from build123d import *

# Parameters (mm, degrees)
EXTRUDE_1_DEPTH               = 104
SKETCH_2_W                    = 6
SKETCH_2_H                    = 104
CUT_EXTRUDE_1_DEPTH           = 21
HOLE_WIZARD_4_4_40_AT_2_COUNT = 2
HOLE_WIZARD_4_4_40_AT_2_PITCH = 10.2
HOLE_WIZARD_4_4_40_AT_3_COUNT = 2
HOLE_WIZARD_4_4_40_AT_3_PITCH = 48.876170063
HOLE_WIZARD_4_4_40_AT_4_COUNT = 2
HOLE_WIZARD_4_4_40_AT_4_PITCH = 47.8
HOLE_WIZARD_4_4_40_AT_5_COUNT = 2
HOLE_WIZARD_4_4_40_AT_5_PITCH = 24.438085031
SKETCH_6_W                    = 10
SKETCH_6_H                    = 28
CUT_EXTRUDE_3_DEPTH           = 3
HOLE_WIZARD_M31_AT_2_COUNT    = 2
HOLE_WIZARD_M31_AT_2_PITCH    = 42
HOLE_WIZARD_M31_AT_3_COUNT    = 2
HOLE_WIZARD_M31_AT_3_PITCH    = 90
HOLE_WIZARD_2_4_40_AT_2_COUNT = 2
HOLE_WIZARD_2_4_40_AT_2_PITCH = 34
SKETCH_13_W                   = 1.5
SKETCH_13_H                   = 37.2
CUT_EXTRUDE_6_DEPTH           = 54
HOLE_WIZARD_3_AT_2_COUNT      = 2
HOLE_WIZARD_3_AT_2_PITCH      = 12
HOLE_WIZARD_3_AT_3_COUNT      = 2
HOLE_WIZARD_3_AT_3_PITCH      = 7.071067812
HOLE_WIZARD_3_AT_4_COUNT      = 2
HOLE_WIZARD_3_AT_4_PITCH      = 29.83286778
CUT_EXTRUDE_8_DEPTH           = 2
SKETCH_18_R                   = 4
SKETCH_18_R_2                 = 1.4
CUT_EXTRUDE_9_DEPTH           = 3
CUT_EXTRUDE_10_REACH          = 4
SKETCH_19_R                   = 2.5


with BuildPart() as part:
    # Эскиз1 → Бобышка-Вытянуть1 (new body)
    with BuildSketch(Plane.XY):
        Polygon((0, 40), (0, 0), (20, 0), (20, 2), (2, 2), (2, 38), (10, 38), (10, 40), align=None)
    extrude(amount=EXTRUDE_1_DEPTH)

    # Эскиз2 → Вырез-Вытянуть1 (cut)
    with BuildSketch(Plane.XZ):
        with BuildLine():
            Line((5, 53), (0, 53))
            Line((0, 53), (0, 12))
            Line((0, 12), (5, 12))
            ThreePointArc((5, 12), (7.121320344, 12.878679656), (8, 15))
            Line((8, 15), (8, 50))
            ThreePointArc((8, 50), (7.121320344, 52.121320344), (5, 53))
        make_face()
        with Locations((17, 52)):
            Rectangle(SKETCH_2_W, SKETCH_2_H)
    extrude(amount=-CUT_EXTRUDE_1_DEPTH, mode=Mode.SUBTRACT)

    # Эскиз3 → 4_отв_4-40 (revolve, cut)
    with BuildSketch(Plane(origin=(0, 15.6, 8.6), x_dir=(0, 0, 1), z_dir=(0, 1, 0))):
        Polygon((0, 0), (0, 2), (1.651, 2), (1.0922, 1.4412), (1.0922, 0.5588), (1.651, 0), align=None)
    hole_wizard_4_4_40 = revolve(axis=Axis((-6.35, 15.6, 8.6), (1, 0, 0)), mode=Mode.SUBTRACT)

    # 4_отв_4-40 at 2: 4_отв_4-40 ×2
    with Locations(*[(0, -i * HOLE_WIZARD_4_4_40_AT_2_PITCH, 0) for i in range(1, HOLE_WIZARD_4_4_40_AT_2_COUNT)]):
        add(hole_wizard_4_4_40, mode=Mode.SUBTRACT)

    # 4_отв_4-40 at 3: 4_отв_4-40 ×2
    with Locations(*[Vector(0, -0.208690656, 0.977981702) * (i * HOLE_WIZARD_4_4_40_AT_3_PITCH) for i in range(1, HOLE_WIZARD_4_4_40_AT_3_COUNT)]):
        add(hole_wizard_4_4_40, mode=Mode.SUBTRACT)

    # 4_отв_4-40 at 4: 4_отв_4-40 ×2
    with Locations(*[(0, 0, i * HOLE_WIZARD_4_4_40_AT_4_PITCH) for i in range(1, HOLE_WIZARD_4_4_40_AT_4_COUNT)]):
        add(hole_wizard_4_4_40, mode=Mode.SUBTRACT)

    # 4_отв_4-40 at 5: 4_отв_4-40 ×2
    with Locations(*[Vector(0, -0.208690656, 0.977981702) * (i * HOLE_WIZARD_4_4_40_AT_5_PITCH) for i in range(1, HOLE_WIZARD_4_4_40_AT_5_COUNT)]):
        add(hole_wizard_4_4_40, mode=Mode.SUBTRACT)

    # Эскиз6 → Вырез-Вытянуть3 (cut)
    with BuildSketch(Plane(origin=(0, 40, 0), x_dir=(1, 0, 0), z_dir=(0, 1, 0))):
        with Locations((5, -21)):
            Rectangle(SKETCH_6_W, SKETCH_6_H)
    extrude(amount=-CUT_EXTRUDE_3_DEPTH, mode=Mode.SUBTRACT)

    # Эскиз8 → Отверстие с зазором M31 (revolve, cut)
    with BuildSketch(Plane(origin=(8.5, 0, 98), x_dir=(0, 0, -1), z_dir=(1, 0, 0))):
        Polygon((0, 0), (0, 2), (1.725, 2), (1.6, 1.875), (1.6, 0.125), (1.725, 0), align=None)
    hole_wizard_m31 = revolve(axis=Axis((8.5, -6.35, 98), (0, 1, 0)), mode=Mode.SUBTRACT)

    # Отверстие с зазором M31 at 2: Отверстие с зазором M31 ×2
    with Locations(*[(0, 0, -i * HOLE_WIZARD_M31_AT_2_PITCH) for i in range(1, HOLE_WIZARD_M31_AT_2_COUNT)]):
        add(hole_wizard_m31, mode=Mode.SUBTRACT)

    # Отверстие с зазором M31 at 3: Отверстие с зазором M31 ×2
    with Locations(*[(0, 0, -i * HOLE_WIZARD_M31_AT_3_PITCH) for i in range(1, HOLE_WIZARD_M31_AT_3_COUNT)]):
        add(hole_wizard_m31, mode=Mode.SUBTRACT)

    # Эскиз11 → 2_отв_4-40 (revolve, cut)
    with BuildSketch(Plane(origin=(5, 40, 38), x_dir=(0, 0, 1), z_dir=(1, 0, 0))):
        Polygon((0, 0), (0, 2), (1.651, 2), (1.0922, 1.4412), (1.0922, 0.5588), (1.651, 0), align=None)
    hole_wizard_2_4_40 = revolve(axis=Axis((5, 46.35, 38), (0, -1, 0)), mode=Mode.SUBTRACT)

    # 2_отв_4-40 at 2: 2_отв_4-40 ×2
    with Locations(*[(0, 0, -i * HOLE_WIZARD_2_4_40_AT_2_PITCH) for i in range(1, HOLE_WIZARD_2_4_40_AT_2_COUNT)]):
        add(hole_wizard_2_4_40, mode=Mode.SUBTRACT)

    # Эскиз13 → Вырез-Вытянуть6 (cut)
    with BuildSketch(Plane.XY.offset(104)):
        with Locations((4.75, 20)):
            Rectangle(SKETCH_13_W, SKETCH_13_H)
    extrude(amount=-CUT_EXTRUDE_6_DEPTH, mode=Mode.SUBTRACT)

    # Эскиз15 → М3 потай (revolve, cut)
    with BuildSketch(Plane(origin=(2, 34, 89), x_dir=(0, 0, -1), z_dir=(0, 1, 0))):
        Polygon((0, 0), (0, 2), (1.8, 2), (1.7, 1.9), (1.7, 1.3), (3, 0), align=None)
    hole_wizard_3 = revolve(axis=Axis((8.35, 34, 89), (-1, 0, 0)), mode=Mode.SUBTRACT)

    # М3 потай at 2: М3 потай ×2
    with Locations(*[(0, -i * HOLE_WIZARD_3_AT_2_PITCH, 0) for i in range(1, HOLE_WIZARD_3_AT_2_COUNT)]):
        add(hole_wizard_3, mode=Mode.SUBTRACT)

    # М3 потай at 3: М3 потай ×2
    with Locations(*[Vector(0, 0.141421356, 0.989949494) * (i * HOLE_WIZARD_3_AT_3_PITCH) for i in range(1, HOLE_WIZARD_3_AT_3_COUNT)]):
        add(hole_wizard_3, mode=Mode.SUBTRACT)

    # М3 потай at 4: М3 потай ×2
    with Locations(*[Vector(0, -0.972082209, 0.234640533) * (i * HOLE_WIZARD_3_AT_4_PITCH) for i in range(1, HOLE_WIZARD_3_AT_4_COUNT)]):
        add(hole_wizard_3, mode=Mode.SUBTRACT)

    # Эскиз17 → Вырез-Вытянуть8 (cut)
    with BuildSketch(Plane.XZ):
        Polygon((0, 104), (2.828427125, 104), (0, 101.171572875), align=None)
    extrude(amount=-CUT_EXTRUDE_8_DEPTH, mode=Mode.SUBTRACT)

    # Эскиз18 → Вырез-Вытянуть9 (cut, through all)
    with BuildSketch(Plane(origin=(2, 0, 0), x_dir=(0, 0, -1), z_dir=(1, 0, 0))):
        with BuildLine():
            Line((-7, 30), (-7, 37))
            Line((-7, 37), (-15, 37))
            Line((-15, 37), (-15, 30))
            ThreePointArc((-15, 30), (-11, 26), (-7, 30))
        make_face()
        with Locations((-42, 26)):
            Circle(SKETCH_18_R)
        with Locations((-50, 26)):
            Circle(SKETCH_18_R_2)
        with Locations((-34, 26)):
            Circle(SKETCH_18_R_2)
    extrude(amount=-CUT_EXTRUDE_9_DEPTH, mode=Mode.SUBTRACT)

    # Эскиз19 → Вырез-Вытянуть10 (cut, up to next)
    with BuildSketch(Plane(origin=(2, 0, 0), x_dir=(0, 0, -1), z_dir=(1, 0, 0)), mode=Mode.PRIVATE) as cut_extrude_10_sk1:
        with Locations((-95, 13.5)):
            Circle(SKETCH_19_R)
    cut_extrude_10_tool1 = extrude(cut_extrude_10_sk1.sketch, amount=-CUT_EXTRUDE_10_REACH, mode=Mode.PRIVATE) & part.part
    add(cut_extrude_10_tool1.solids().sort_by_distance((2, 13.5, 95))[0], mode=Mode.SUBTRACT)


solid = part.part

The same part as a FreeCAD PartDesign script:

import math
import FreeCAD as App
import Part
import Sketcher
Q = App.Units.Quantity


def add_polygon(sketch, points):
    """Adds a closed chain of lines whose ends are joined by coincident constraints."""
    first, n = sketch.GeometryCount, len(points)
    for a, b in zip(points, points[1:] + points[:1]):
        sketch.addGeometry(Part.LineSegment(App.Vector(*a, 0), App.Vector(*b, 0)), False)
    for i in range(n):
        sketch.addConstraint(Sketcher.Constraint("Coincident", first + i, 2, first + (i + 1) % n, 1))

doc = App.newDocument("Part")
body = doc.addObject("PartDesign::Body", "Body")

sketch1 = doc.addObject("Sketcher::SketchObject", "Sketch")
body.addObject(sketch1)
sketch1.AttachmentSupport = (doc.XY_Plane, [""])
sketch1.MapMode = "FlatFace"
add_polygon(sketch1, [(0, 40), (0, 0), (20, 0), (20, 2), (2, 2), (2, 38), (10, 38), (10, 40)])
sketch1.addConstraint(Sketcher.Constraint("Vertical", 0))
sketch1.addConstraint(Sketcher.Constraint("Horizontal", 1))
sketch1.addConstraint(Sketcher.Constraint("Vertical", 2))
sketch1.addConstraint(Sketcher.Constraint("Horizontal", 3))
sketch1.addConstraint(Sketcher.Constraint("Vertical", 4))
sketch1.addConstraint(Sketcher.Constraint("Horizontal", 5))
sketch1.addConstraint(Sketcher.Constraint("Vertical", 6))
sketch1.addConstraint(Sketcher.Constraint("Horizontal", 7))
sketch1.addConstraint(Sketcher.Constraint("Coincident", 0, 2, -1, 1))
sketch1.addConstraint(Sketcher.Constraint("Equal", 2, 6))
sketch1.addConstraint(Sketcher.Constraint("DistanceX", 1, 1, 1, 2, Q("20 mm")))
sketch1.addConstraint(Sketcher.Constraint("DistanceX", 3, 2, 3, 1, Q("18 mm")))
sketch1.addConstraint(Sketcher.Constraint("DistanceX", 5, 1, 5, 2, Q("8 mm")))
sketch1.addConstraint(Sketcher.Constraint("DistanceY", 0, 2, 0, 1, Q("40 mm")))
sketch1.addConstraint(Sketcher.Constraint("DistanceY", 2, 1, 2, 2, Q("2 mm")))
pad1 = doc.addObject("PartDesign::Pad", "Pad")
body.addObject(pad1)
pad1.Profile = sketch1
pad1.Length = 104

sketch2 = doc.addObject("Sketcher::SketchObject", "Sketch001")
body.addObject(sketch2)
sketch2.AttachmentSupport = (doc.XZ_Plane, [""])
sketch2.MapMode = "FlatFace"
sketch2.addGeometry(Part.LineSegment(App.Vector(5, 53, 0), App.Vector(0, 53, 0)), False)
sketch2.addGeometry(Part.LineSegment(App.Vector(0, 53, 0), App.Vector(0, 12, 0)), False)
sketch2.addGeometry(Part.LineSegment(App.Vector(0, 12, 0), App.Vector(5, 12, 0)), False)
sketch2.addGeometry(Part.ArcOfCircle(Part.Circle(App.Vector(5, 15, 0), App.Vector(0, 0, 1), 3), math.radians(-90), math.radians(0)), False)
sketch2.addGeometry(Part.LineSegment(App.Vector(8, 15, 0), App.Vector(8, 50, 0)), False)
sketch2.addGeometry(Part.ArcOfCircle(Part.Circle(App.Vector(5, 50, 0), App.Vector(0, 0, 1), 3), math.radians(0), math.radians(90)), False)
add_polygon(sketch2, [(14, 104), (14, 0), (20, 0), (20, 104)])
sketch2.addConstraint(Sketcher.Constraint("Coincident", 0, 2, 1, 1))
sketch2.addConstraint(Sketcher.Constraint("Coincident", 1, 2, 2, 1))
sketch2.addConstraint(Sketcher.Constraint("Tangent", 2, 2, 3, 1))
sketch2.addConstraint(Sketcher.Constraint("Tangent", 3, 2, 4, 1))
sketch2.addConstraint(Sketcher.Constraint("Tangent", 4, 2, 5, 1))
sketch2.addConstraint(Sketcher.Constraint("Tangent", 5, 2, 0, 1))
sketch2.addConstraint(Sketcher.Constraint("Horizontal", 0))
sketch2.addConstraint(Sketcher.Constraint("Vertical", 1))
sketch2.addConstraint(Sketcher.Constraint("Horizontal", 2))
sketch2.addConstraint(Sketcher.Constraint("Vertical", 4))
sketch2.addConstraint(Sketcher.Constraint("Vertical", 6))
sketch2.addConstraint(Sketcher.Constraint("Horizontal", 7))
sketch2.addConstraint(Sketcher.Constraint("Vertical", 8))
sketch2.addConstraint(Sketcher.Constraint("Horizontal", 9))
sketch2.addConstraint(Sketcher.Constraint("Equal", 3, 5))
sketch2.addConstraint(Sketcher.Constraint("PointOnObject", 0, 2, -2))
sketch2.addConstraint(Sketcher.Constraint("PointOnObject", 6, 2, -1))
sketch2.addConstraint(Sketcher.Constraint("Radius", 3, Q("3 mm")))
sketch2.addConstraint(Sketcher.Constraint("DistanceX", 0, 2, 0, 1, Q("5 mm")))
sketch2.addConstraint(Sketcher.Constraint("DistanceX", 7, 1, 7, 2, Q("6 mm")))
sketch2.addConstraint(Sketcher.Constraint("DistanceY", 1, 2, 1, 1, Q("41 mm")))
sketch2.addConstraint(Sketcher.Constraint("DistanceY", 6, 2, 6, 1, Q("104 mm")))
sketch2.addConstraint(Sketcher.Constraint("DistanceY", -1, 1, 3, 3, Q("15 mm")))
sketch2.addConstraint(Sketcher.Constraint("DistanceX", -1, 1, 6, 2, Q("14 mm")))
pocket1 = doc.addObject("PartDesign::Pocket", "Pocket")
body.addObject(pocket1)
pocket1.Profile = sketch2
pocket1.Length = 21

sketch3 = doc.addObject("Sketcher::SketchObject", "Sketch002")
body.addObject(sketch3)
sketch3.AttachmentSupport = (doc.XZ_Plane, [""])
sketch3.MapMode = "FlatFace"
sketch3.AttachmentOffset = App.Placement(App.Vector(0, 0, -15.6), App.Rotation())
add_polygon(sketch3, [(2, 8.6), (0, 8.6), (0, 10.251), (0.5588, 9.6922), (1.4412, 9.6922), (2, 10.251)])
sketch3.addGeometry(Part.LineSegment(App.Vector(0, 8.6, 0), App.Vector(2, 8.6, 0)), True)
sketch3.addConstraint(Sketcher.Constraint("Horizontal", 0))
sketch3.addConstraint(Sketcher.Constraint("Vertical", 1))
sketch3.addConstraint(Sketcher.Constraint("Horizontal", 3))
sketch3.addConstraint(Sketcher.Constraint("Vertical", 5))
sketch3.addConstraint(Sketcher.Constraint("Horizontal", 6))
sketch3.addConstraint(Sketcher.Constraint("Coincident", 6, 1, 0, 2))
sketch3.addConstraint(Sketcher.Constraint("PointOnObject", 0, 2, -2))
sketch3.addConstraint(Sketcher.Constraint("Perpendicular", 2, 4))
sketch3.addConstraint(Sketcher.Constraint("Horizontal", 1, 2, 4, 2))
sketch3.addConstraint(Sketcher.Constraint("Vertical", 4, 2, 6, 2))
sketch3.addConstraint(Sketcher.Constraint("Equal", 2, 4))
sketch3.addConstraint(Sketcher.Constraint("DistanceX", 0, 2, 0, 1, Q("2 mm")))
sketch3.addConstraint(Sketcher.Constraint("DistanceY", -1, 1, 0, 2, Q("8.6 mm")))
sketch3.addConstraint(Sketcher.Constraint("DistanceY", 1, 1, 1, 2, Q("1.651 mm")))
sketch3.addConstraint(Sketcher.Constraint("DistanceX", 3, 1, 3, 2, Q("0.8824 mm")))
groove = doc.addObject("PartDesign::Groove", "Groove")
body.addObject(groove)
groove.Profile = sketch3
groove.ReferenceAxis = (sketch3, ["Axis0"])
groove.Angle = 360
doc.recompute()

linearpattern = doc.addObject("PartDesign::LinearPattern", "LinearPattern")
body.addObject(linearpattern)
linearpattern.Originals = [groove]
linearpattern.Direction = (doc.Y_Axis, [""])
linearpattern.Mode = "offset"
linearpattern.Offset = 10.2
linearpattern.Occurrences = 2
linearpattern.Reversed = True
body.Tip = linearpattern
doc.recompute()

datumline = doc.addObject("PartDesign::Line", "DatumLine")
body.addObject(datumline)
datumline.Placement = App.Placement(App.Vector(0, 0, 0), App.Rotation(App.Vector(0, 0, 1), App.Vector(0, -0.208690656, 0.977981702)))
linearpattern2 = doc.addObject("PartDesign::LinearPattern", "LinearPattern001")
body.addObject(linearpattern2)
linearpattern2.Originals = [groove]
linearpattern2.Direction = (datumline, [""])
linearpattern2.Mode = "offset"
linearpattern2.Offset = 48.87617
linearpattern2.Occurrences = 2
body.Tip = linearpattern2
doc.recompute()

linearpattern3 = doc.addObject("PartDesign::LinearPattern", "LinearPattern002")
body.addObject(linearpattern3)
linearpattern3.Originals = [groove]
linearpattern3.Direction = (doc.Z_Axis, [""])
linearpattern3.Mode = "offset"
linearpattern3.Offset = 47.8
linearpattern3.Occurrences = 2
body.Tip = linearpattern3
doc.recompute()

datumline2 = doc.addObject("PartDesign::Line", "DatumLine001")
body.addObject(datumline2)
datumline2.Placement = App.Placement(App.Vector(0, 0, 0), App.Rotation(App.Vector(0, 0, 1), App.Vector(0, -0.208690656, 0.977981702)))
linearpattern4 = doc.addObject("PartDesign::LinearPattern", "LinearPattern003")
body.addObject(linearpattern4)
linearpattern4.Originals = [groove]
linearpattern4.Direction = (datumline2, [""])
linearpattern4.Mode = "offset"
linearpattern4.Offset = 24.438085
linearpattern4.Occurrences = 2
body.Tip = linearpattern4

sketch4 = doc.addObject("Sketcher::SketchObject", "Sketch003")
body.addObject(sketch4)
sketch4.AttachmentSupport = (doc.XZ_Plane, [""])
sketch4.MapMode = "FlatFace"
sketch4.AttachmentOffset = App.Placement(App.Vector(0, 0, -40), App.Rotation())
add_polygon(sketch4, [(0, 7), (0, 35), (10, 35), (10, 7)])
sketch4.addConstraint(Sketcher.Constraint("Vertical", 0))
sketch4.addConstraint(Sketcher.Constraint("Horizontal", 1))
sketch4.addConstraint(Sketcher.Constraint("Vertical", 2))
sketch4.addConstraint(Sketcher.Constraint("Horizontal", 3))
sketch4.addConstraint(Sketcher.Constraint("PointOnObject", 0, 2, -2))
sketch4.addConstraint(Sketcher.Constraint("DistanceX", 1, 1, 1, 2, Q("10 mm")))
sketch4.addConstraint(Sketcher.Constraint("DistanceY", 0, 1, 0, 2, Q("28 mm")))
sketch4.addConstraint(Sketcher.Constraint("DistanceY", -1, 1, 0, 2, Q("35 mm")))
pocket2 = doc.addObject("PartDesign::Pocket", "Pocket001")
body.addObject(pocket2)
pocket2.Profile = sketch4
pocket2.Length = 3
pocket2.Reversed = True

sketch5 = doc.addObject("Sketcher::SketchObject", "Sketch004")
body.addObject(sketch5)
sketch5.AttachmentSupport = (doc.YZ_Plane, [""])
sketch5.MapMode = "FlatFace"
sketch5.AttachmentOffset = App.Placement(App.Vector(0, 0, 8.5), App.Rotation())
add_polygon(sketch5, [(2, 98), (0, 98), (0, 96.275), (0.125, 96.4), (1.875, 96.4), (2, 96.275)])
sketch5.addGeometry(Part.LineSegment(App.Vector(0, 98, 0), App.Vector(2, 98, 0)), True)
sketch5.addConstraint(Sketcher.Constraint("Horizontal", 0))
sketch5.addConstraint(Sketcher.Constraint("Vertical", 1))
sketch5.addConstraint(Sketcher.Constraint("Horizontal", 3))
sketch5.addConstraint(Sketcher.Constraint("Vertical", 5))
sketch5.addConstraint(Sketcher.Constraint("Horizontal", 6))
sketch5.addConstraint(Sketcher.Constraint("Coincident", 6, 1, 0, 2))
sketch5.addConstraint(Sketcher.Constraint("PointOnObject", 0, 2, -2))
sketch5.addConstraint(Sketcher.Constraint("Perpendicular", 2, 4))
sketch5.addConstraint(Sketcher.Constraint("Horizontal", 1, 2, 4, 2))
sketch5.addConstraint(Sketcher.Constraint("Vertical", 4, 2, 6, 2))
sketch5.addConstraint(Sketcher.Constraint("Equal", 2, 4))
sketch5.addConstraint(Sketcher.Constraint("DistanceX", 0, 2, 0, 1, Q("2 mm")))
sketch5.addConstraint(Sketcher.Constraint("DistanceY", -1, 1, 0, 2, Q("98 mm")))
sketch5.addConstraint(Sketcher.Constraint("DistanceX", 3, 1, 3, 2, Q("1.75 mm")))
sketch5.addConstraint(Sketcher.Constraint("DistanceY", -1, 1, 2, 2, Q("96.4 mm")))
groove2 = doc.addObject("PartDesign::Groove", "Groove001")
body.addObject(groove2)
groove2.Profile = sketch5
groove2.ReferenceAxis = (sketch5, ["Axis0"])
groove2.Angle = 360
doc.recompute()

linearpattern5 = doc.addObject("PartDesign::LinearPattern", "LinearPattern004")
body.addObject(linearpattern5)
linearpattern5.Originals = [groove2]
linearpattern5.Direction = (doc.Z_Axis, [""])
linearpattern5.Mode = "offset"
linearpattern5.Offset = 42
linearpattern5.Occurrences = 2
linearpattern5.Reversed = True
body.Tip = linearpattern5
doc.recompute()

linearpattern6 = doc.addObject("PartDesign::LinearPattern", "LinearPattern005")
body.addObject(linearpattern6)
linearpattern6.Originals = [groove2]
linearpattern6.Direction = (doc.Z_Axis, [""])
linearpattern6.Mode = "offset"
linearpattern6.Offset = 90
linearpattern6.Occurrences = 2
linearpattern6.Reversed = True
body.Tip = linearpattern6

sketch6 = doc.addObject("Sketcher::SketchObject", "Sketch005")
body.addObject(sketch6)
sketch6.AttachmentSupport = (doc.YZ_Plane, [""])
sketch6.MapMode = "FlatFace"
sketch6.AttachmentOffset = App.Placement(App.Vector(0, 0, 5), App.Rotation())
add_polygon(sketch6, [(38, 38), (40, 38), (40, 39.651), (39.4412, 39.0922), (38.5588, 39.0922), (38, 39.651)])
sketch6.addGeometry(Part.LineSegment(App.Vector(40, 38, 0), App.Vector(38, 38, 0)), True)
sketch6.addConstraint(Sketcher.Constraint("Horizontal", 0))
sketch6.addConstraint(Sketcher.Constraint("Vertical", 1))
sketch6.addConstraint(Sketcher.Constraint("Horizontal", 3))
sketch6.addConstraint(Sketcher.Constraint("Vertical", 5))
sketch6.addConstraint(Sketcher.Constraint("Horizontal", 6))
sketch6.addConstraint(Sketcher.Constraint("Coincident", 6, 1, 0, 2))
sketch6.addConstraint(Sketcher.Constraint("Perpendicular", 2, 4))
sketch6.addConstraint(Sketcher.Constraint("Horizontal", 1, 2, 4, 2))
sketch6.addConstraint(Sketcher.Constraint("Vertical", 4, 2, 6, 2))
sketch6.addConstraint(Sketcher.Constraint("Equal", 2, 4))
sketch6.addConstraint(Sketcher.Constraint("DistanceX", 0, 1, 0, 2, Q("2 mm")))
sketch6.addConstraint(Sketcher.Constraint("DistanceX", -1, 1, 0, 2, Q("40 mm")))
sketch6.addConstraint(Sketcher.Constraint("DistanceY", -1, 1, 0, 2, Q("38 mm")))
sketch6.addConstraint(Sketcher.Constraint("DistanceY", 1, 1, 1, 2, Q("1.651 mm")))
sketch6.addConstraint(Sketcher.Constraint("DistanceX", 3, 2, 3, 1, Q("0.8824 mm")))
groove3 = doc.addObject("PartDesign::Groove", "Groove002")
body.addObject(groove3)
groove3.Profile = sketch6
groove3.ReferenceAxis = (sketch6, ["Axis0"])
groove3.Angle = 360
doc.recompute()

linearpattern7 = doc.addObject("PartDesign::LinearPattern", "LinearPattern006")
body.addObject(linearpattern7)
linearpattern7.Originals = [groove3]
linearpattern7.Direction = (doc.Z_Axis, [""])
linearpattern7.Mode = "offset"
linearpattern7.Offset = 34
linearpattern7.Occurrences = 2
linearpattern7.Reversed = True
body.Tip = linearpattern7

sketch7 = doc.addObject("Sketcher::SketchObject", "Sketch006")
body.addObject(sketch7)
sketch7.AttachmentSupport = (doc.XY_Plane, [""])
sketch7.MapMode = "FlatFace"
sketch7.AttachmentOffset = App.Placement(App.Vector(0, 0, 104), App.Rotation())
add_polygon(sketch7, [(4, 38.6), (4, 1.4), (5.5, 1.4), (5.5, 38.6)])
sketch7.addConstraint(Sketcher.Constraint("Vertical", 0))
sketch7.addConstraint(Sketcher.Constraint("Horizontal", 1))
sketch7.addConstraint(Sketcher.Constraint("Vertical", 2))
sketch7.addConstraint(Sketcher.Constraint("Horizontal", 3))
sketch7.addConstraint(Sketcher.Constraint("DistanceX", 1, 1, 1, 2, Q("1.5 mm")))
sketch7.addConstraint(Sketcher.Constraint("DistanceY", 0, 2, 0, 1, Q("37.2 mm")))
sketch7.addConstraint(Sketcher.Constraint("DistanceX", -1, 1, 0, 2, Q("4 mm")))
sketch7.addConstraint(Sketcher.Constraint("DistanceY", -1, 1, 0, 2, Q("1.4 mm")))
pocket3 = doc.addObject("PartDesign::Pocket", "Pocket002")
body.addObject(pocket3)
pocket3.Profile = sketch7
pocket3.Length = 54

sketch8 = doc.addObject("Sketcher::SketchObject", "Sketch007")
body.addObject(sketch8)
sketch8.AttachmentSupport = (doc.XZ_Plane, [""])
sketch8.MapMode = "FlatFace"
sketch8.AttachmentOffset = App.Placement(App.Vector(0, 0, -34), App.Rotation())
add_polygon(sketch8, [(0, 89), (2, 89), (2, 86), (0.7, 87.3), (0.1, 87.3), (0, 87.2)])
sketch8.addGeometry(Part.LineSegment(App.Vector(2, 89, 0), App.Vector(0, 89, 0)), True)
sketch8.addConstraint(Sketcher.Constraint("Horizontal", 0))
sketch8.addConstraint(Sketcher.Constraint("Vertical", 1))
sketch8.addConstraint(Sketcher.Constraint("Horizontal", 3))
sketch8.addConstraint(Sketcher.Constraint("Vertical", 5))
sketch8.addConstraint(Sketcher.Constraint("Horizontal", 6))
sketch8.addConstraint(Sketcher.Constraint("Coincident", 6, 1, 0, 2))
sketch8.addConstraint(Sketcher.Constraint("PointOnObject", 4, 2, -2))
sketch8.addConstraint(Sketcher.Constraint("PointOnObject", 6, 2, -2))
sketch8.addConstraint(Sketcher.Constraint("Perpendicular", 2, 4))
sketch8.addConstraint(Sketcher.Constraint("DistanceX", 0, 1, 0, 2, Q("2 mm")))
sketch8.addConstraint(Sketcher.Constraint("DistanceY", 1, 2, 1, 1, Q("3 mm")))
sketch8.addConstraint(Sketcher.Constraint("Angle", 2, Q("135 deg")))
sketch8.addConstraint(Sketcher.Constraint("DistanceX", 3, 2, 3, 1, Q("0.6 mm")))
sketch8.addConstraint(Sketcher.Constraint("DistanceY", 5, 1, 5, 2, Q("1.8 mm")))
sketch8.addConstraint(Sketcher.Constraint("DistanceY", -1, 1, 0, 2, Q("89 mm")))
groove4 = doc.addObject("PartDesign::Groove", "Groove003")
body.addObject(groove4)
groove4.Profile = sketch8
groove4.ReferenceAxis = (sketch8, ["Axis0"])
groove4.Angle = 360
doc.recompute()

linearpattern8 = doc.addObject("PartDesign::LinearPattern", "LinearPattern007")
body.addObject(linearpattern8)
linearpattern8.Originals = [groove4]
linearpattern8.Direction = (doc.Y_Axis, [""])
linearpattern8.Mode = "offset"
linearpattern8.Offset = 12
linearpattern8.Occurrences = 2
linearpattern8.Reversed = True
body.Tip = linearpattern8
doc.recompute()

datumline3 = doc.addObject("PartDesign::Line", "DatumLine002")
body.addObject(datumline3)
datumline3.Placement = App.Placement(App.Vector(0, 0, 0), App.Rotation(App.Vector(0, 0, 1), App.Vector(0, 0.141421356, 0.989949494)))
linearpattern9 = doc.addObject("PartDesign::LinearPattern", "LinearPattern008")
body.addObject(linearpattern9)
linearpattern9.Originals = [groove4]
linearpattern9.Direction = (datumline3, [""])
linearpattern9.Mode = "offset"
linearpattern9.Offset = 7.071068
linearpattern9.Occurrences = 2
body.Tip = linearpattern9
doc.recompute()

datumline4 = doc.addObject("PartDesign::Line", "DatumLine003")
body.addObject(datumline4)
datumline4.Placement = App.Placement(App.Vector(0, 0, 0), App.Rotation(App.Vector(0, 0, 1), App.Vector(0, -0.972082209, 0.234640533)))
linearpattern10 = doc.addObject("PartDesign::LinearPattern", "LinearPattern009")
body.addObject(linearpattern10)
linearpattern10.Originals = [groove4]
linearpattern10.Direction = (datumline4, [""])
linearpattern10.Mode = "offset"
linearpattern10.Offset = 29.832868
linearpattern10.Occurrences = 2
body.Tip = linearpattern10

sketch9 = doc.addObject("Sketcher::SketchObject", "Sketch008")
body.addObject(sketch9)
sketch9.AttachmentSupport = (doc.XZ_Plane, [""])
sketch9.MapMode = "FlatFace"
add_polygon(sketch9, [(2.828427, 104), (0, 104), (0, 101.171573)])
sketch9.addConstraint(Sketcher.Constraint("Horizontal", 0))
sketch9.addConstraint(Sketcher.Constraint("Vertical", 1))
sketch9.addConstraint(Sketcher.Constraint("PointOnObject", 0, 2, -2))
sketch9.addConstraint(Sketcher.Constraint("Equal", 0, 1))
sketch9.addConstraint(Sketcher.Constraint("Distance", 2, Q("4 mm")))
sketch9.addConstraint(Sketcher.Constraint("DistanceY", -1, 1, 0, 2, Q("104 mm")))
pocket4 = doc.addObject("PartDesign::Pocket", "Pocket003")
body.addObject(pocket4)
pocket4.Profile = sketch9
pocket4.Length = 2

sketch10 = doc.addObject("Sketcher::SketchObject", "Sketch009")
body.addObject(sketch10)
sketch10.AttachmentSupport = (doc.YZ_Plane, [""])
sketch10.MapMode = "FlatFace"
sketch10.AttachmentOffset = App.Placement(App.Vector(0, 0, 2), App.Rotation())
sketch10.addGeometry(Part.LineSegment(App.Vector(30, 7, 0), App.Vector(37, 7, 0)), False)
sketch10.addGeometry(Part.LineSegment(App.Vector(37, 7, 0), App.Vector(37, 15, 0)), False)
sketch10.addGeometry(Part.LineSegment(App.Vector(37, 15, 0), App.Vector(30, 15, 0)), False)
sketch10.addGeometry(Part.ArcOfCircle(Part.Circle(App.Vector(30, 11, 0), App.Vector(0, 0, 1), 4), math.radians(90), math.radians(270)), False)
sketch10.addGeometry(Part.Circle(App.Vector(26, 42, 0), App.Vector(0, 0, 1), 4), False)
sketch10.addGeometry(Part.Circle(App.Vector(26, 50, 0), App.Vector(0, 0, 1), 1.4), False)
sketch10.addGeometry(Part.Circle(App.Vector(26, 34, 0), App.Vector(0, 0, 1), 1.4), False)
sketch10.addConstraint(Sketcher.Constraint("Coincident", 0, 2, 1, 1))
sketch10.addConstraint(Sketcher.Constraint("Coincident", 1, 2, 2, 1))
sketch10.addConstraint(Sketcher.Constraint("Tangent", 2, 2, 3, 1))
sketch10.addConstraint(Sketcher.Constraint("Tangent", 3, 2, 0, 1))
sketch10.addConstraint(Sketcher.Constraint("Horizontal", 0))
sketch10.addConstraint(Sketcher.Constraint("Vertical", 1))
sketch10.addConstraint(Sketcher.Constraint("Horizontal", 2))
sketch10.addConstraint(Sketcher.Constraint("Equal", 3, 4))
sketch10.addConstraint(Sketcher.Constraint("Equal", 5, 6))
sketch10.addConstraint(Sketcher.Constraint("Vertical", 4, 3, 5, 3))
sketch10.addConstraint(Sketcher.Constraint("Vertical", 5, 3, 6, 3))
sketch10.addConstraint(Sketcher.Constraint("Diameter", 4, Q("8 mm")))
sketch10.addConstraint(Sketcher.Constraint("Diameter", 5, Q("2.8 mm")))
sketch10.addConstraint(Sketcher.Constraint("DistanceX", 0, 1, 0, 2, Q("7 mm")))
sketch10.addConstraint(Sketcher.Constraint("DistanceX", -1, 1, 3, 3, Q("30 mm")))
sketch10.addConstraint(Sketcher.Constraint("DistanceY", -1, 1, 3, 3, Q("11 mm")))
sketch10.addConstraint(Sketcher.Constraint("DistanceX", -1, 1, 4, 3, Q("26 mm")))
sketch10.addConstraint(Sketcher.Constraint("DistanceY", -1, 1, 4, 3, Q("42 mm")))
sketch10.addConstraint(Sketcher.Constraint("DistanceY", -1, 1, 5, 3, Q("50 mm")))
sketch10.addConstraint(Sketcher.Constraint("DistanceY", -1, 1, 6, 3, Q("34 mm")))
pocket5 = doc.addObject("PartDesign::Pocket", "Pocket004")
body.addObject(pocket5)
pocket5.Profile = sketch10
pocket5.Type = "ThroughAll"

sketch11 = doc.addObject("Sketcher::SketchObject", "Sketch010")
body.addObject(sketch11)
sketch11.AttachmentSupport = (doc.YZ_Plane, [""])
sketch11.MapMode = "FlatFace"
sketch11.AttachmentOffset = App.Placement(App.Vector(0, 0, 2), App.Rotation())
sketch11.addGeometry(Part.Circle(App.Vector(13.5, 95, 0), App.Vector(0, 0, 1), 2.5), False)
sketch11.addConstraint(Sketcher.Constraint("Diameter", 0, Q("5 mm")))
sketch11.addConstraint(Sketcher.Constraint("DistanceY", -1, 1, 0, 3, Q("95 mm")))
sketch11.addConstraint(Sketcher.Constraint("DistanceX", -1, 1, 0, 3, Q("13.5 mm")))
pocket6 = doc.addObject("PartDesign::Pocket", "Pocket005")
body.addObject(pocket6)
pocket6.Profile = sketch11
pocket6.Type = "UpToFirst"

doc.recompute()
